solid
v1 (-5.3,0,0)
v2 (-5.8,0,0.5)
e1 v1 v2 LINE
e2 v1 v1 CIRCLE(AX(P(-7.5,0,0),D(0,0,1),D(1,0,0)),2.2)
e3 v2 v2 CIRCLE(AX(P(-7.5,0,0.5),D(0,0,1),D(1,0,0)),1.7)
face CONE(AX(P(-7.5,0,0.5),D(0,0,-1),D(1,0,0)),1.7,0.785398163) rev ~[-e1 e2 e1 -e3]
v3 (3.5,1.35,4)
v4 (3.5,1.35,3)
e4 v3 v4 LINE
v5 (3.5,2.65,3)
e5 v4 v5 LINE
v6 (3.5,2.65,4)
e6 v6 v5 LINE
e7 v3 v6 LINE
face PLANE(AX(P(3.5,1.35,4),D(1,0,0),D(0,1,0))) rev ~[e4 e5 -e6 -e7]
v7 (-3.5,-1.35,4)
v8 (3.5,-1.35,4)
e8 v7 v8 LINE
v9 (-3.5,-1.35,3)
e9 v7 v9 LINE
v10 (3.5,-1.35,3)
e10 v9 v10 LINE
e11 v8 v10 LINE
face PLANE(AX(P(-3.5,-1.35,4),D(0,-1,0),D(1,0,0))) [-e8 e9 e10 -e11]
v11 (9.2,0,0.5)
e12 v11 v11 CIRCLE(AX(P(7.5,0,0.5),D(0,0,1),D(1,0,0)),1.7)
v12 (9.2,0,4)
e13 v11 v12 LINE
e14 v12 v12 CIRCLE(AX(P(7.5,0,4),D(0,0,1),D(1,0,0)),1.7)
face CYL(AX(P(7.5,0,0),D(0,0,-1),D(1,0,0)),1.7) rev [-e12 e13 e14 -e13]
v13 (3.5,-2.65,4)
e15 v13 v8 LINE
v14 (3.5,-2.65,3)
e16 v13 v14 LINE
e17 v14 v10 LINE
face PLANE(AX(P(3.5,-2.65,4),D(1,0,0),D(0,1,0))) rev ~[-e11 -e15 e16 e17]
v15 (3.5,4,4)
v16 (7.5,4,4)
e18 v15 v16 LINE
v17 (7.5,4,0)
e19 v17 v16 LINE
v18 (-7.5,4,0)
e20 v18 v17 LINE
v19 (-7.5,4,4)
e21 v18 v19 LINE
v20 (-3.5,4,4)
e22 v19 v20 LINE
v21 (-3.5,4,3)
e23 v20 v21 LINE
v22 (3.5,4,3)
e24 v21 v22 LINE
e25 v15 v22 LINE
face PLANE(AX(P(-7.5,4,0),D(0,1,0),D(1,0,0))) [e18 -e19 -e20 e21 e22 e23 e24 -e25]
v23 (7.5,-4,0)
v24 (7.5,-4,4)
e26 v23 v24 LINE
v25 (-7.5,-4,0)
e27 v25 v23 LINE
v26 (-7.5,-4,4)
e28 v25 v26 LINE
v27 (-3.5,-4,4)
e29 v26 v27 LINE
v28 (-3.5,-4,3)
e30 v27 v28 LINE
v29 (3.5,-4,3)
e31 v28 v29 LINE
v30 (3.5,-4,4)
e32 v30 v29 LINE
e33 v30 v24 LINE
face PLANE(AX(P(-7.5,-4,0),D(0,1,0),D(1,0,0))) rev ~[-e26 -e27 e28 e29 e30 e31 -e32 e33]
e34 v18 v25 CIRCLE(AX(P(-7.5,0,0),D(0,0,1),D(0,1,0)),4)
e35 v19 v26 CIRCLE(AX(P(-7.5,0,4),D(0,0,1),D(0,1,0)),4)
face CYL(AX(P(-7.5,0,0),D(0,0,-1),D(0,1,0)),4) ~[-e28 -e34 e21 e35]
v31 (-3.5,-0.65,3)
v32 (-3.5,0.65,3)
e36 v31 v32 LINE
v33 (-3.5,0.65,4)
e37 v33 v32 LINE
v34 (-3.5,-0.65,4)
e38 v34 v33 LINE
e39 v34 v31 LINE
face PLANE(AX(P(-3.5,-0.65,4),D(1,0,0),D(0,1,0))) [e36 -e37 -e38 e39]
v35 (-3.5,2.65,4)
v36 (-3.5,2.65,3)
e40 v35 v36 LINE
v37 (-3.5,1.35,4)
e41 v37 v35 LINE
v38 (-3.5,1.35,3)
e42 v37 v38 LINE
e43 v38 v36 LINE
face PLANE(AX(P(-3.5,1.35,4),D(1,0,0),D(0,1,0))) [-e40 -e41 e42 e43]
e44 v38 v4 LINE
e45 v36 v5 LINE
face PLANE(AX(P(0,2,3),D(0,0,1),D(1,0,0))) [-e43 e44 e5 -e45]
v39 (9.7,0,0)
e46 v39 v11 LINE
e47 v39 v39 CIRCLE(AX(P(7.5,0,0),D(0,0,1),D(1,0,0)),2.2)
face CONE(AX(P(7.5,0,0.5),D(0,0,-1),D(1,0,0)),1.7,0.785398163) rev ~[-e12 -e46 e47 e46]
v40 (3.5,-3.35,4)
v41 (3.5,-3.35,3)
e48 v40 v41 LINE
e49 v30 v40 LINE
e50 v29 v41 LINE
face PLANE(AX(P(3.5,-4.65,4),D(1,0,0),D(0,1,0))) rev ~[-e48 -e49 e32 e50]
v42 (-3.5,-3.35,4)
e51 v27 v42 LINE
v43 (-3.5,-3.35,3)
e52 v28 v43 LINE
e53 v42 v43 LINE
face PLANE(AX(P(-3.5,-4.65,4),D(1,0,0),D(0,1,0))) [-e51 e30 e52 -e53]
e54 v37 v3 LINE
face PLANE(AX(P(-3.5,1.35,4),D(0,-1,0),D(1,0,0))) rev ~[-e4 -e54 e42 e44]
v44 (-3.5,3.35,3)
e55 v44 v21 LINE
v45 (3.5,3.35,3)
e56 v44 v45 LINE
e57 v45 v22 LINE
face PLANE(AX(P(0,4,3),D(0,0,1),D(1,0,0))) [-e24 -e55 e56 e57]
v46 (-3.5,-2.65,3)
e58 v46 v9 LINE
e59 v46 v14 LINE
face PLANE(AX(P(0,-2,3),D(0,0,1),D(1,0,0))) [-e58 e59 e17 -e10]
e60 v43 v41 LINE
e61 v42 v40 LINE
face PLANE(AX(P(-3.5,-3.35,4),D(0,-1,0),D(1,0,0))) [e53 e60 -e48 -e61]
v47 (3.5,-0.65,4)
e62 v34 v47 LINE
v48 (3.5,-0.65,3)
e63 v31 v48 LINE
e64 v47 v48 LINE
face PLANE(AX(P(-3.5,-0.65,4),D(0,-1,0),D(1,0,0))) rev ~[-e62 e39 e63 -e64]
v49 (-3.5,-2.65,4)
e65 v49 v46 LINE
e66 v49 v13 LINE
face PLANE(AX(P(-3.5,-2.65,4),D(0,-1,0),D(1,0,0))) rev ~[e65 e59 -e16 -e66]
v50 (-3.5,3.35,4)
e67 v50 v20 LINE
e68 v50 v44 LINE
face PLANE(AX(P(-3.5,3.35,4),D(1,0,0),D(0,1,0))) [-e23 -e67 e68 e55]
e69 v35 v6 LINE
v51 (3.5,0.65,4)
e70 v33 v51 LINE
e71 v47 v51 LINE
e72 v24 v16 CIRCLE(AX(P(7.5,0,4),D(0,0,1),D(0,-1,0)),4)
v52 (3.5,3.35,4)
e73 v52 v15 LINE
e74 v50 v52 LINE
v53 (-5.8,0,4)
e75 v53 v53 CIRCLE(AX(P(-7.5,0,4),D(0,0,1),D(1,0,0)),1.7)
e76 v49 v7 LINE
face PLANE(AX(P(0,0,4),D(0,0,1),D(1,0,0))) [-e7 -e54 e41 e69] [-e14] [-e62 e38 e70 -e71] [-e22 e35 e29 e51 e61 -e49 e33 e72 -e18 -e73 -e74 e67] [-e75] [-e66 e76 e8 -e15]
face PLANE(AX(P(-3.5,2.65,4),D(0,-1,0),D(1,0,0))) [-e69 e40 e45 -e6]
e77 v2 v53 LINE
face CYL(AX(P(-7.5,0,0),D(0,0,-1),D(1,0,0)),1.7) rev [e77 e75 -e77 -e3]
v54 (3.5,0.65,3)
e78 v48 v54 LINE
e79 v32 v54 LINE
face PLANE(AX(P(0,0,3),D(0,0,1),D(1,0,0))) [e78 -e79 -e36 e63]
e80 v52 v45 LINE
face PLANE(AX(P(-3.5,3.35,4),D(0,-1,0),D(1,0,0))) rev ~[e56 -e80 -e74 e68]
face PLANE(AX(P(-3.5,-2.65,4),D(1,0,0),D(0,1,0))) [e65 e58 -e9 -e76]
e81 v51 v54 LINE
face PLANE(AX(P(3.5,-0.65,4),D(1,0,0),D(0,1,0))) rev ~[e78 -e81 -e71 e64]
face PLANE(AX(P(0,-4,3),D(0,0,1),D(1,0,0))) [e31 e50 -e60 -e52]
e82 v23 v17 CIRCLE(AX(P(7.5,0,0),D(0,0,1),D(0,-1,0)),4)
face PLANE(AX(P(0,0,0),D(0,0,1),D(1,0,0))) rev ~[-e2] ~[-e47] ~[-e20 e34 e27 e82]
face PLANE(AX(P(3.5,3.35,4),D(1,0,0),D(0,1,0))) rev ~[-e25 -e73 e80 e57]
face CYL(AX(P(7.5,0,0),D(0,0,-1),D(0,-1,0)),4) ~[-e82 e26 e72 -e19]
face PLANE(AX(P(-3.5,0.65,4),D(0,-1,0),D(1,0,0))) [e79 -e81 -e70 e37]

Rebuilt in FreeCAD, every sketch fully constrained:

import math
import FreeCAD as App
import Part
import Sketcher


def edges_at(feature, points):
    """Names of the edges that pass closest to the given points."""
    edges = feature.Shape.Edges
    near = lambda p: min(range(len(edges)), key=lambda i: edges[i].distToShape(Part.Vertex(*p))[0])
    return sorted({f"Edge{near(p) + 1}" for p in points})


def add_polygon(sketch, points):
    """Adds a closed chain of lines whose ends are joined by coincident constraints."""
    first, n = sketch.GeometryCount, len(points)
    for a, b in zip(points, points[1:] + points[:1]):
        sketch.addGeometry(Part.LineSegment(App.Vector(*a, 0), App.Vector(*b, 0)), False)
    for i in range(n):
        sketch.addConstraint(Sketcher.Constraint("Coincident", first + i, 2, first + (i + 1) % n, 1))

doc = App.newDocument("Part")
body = doc.addObject("PartDesign::Body", "Body")

sketch1 = body.newObject("Sketcher::SketchObject", "Sketch")
sketch1.AttachmentSupport = (doc.getObject("XY_Plane"), [""])
sketch1.MapMode = "FlatFace"
sketch1.addGeometry([
    Part.ArcOfCircle(Part.Circle(App.Vector(-7.5, 0, 0), App.Vector(0, 0, 1), 4), math.radians(90), math.radians(270)),
    Part.LineSegment(App.Vector(-7.5, -4, 0), App.Vector(7.5, -4, 0)),
    Part.ArcOfCircle(Part.Circle(App.Vector(7.5, 0, 0), App.Vector(0, 0, 1), 4), math.radians(-90), math.radians(90)),
    Part.LineSegment(App.Vector(7.5, 4, 0), App.Vector(-7.5, 4, 0)),
    Part.Circle(App.Vector(-7.5, 0, 0), App.Vector(0, 0, 1), 1.7),
    Part.Circle(App.Vector(7.5, 0, 0), App.Vector(0, 0, 1), 1.7),
], False)
sketch1.addConstraint([
    Sketcher.Constraint("Tangent", 0, 2, 1, 1),
    Sketcher.Constraint("Tangent", 1, 2, 2, 1),
    Sketcher.Constraint("Tangent", 2, 2, 3, 1),
    Sketcher.Constraint("Tangent", 3, 2, 0, 1),
    Sketcher.Constraint("Horizontal", 1),
    Sketcher.Constraint("Horizontal", 3),
    Sketcher.Constraint("Coincident", 4, 3, 0, 3),
    Sketcher.Constraint("Coincident", 5, 3, 2, 3),
    Sketcher.Constraint("Equal", 4, 5),
    Sketcher.Constraint("Symmetric", 0, 3, 2, 3, -1, 1),
    Sketcher.Constraint("Radius", 0, 4.0),
    Sketcher.Constraint("Diameter", 4, 3.4),
    Sketcher.Constraint("DistanceX", 1, 1, 1, 2, 15.0),
])
pad1 = body.newObject("PartDesign::Pad", "Pad")
pad1.Profile = sketch1
pad1.Length = 4

sketch2 = body.newObject("Sketcher::SketchObject", "Sketch001")
sketch2.AttachmentSupport = (doc.getObject("XY_Plane"), [""])
sketch2.MapMode = "FlatFace"
sketch2.AttachmentOffset = App.Placement(App.Vector(0, 0, 4), App.Rotation())
add_polygon(sketch2, [(-3.5, 2.6), (-3.5, 1.4), (3.5, 1.4), (3.5, 2.6)])
add_polygon(sketch2, [(-3.5, 0.7), (-3.5, -0.7), (3.5, -0.7), (3.5, 0.7)])
add_polygon(sketch2, [(-3.5, -1.4), (-3.5, -2.6), (3.5, -2.6), (3.5, -1.4)])
add_polygon(sketch2, [(-3.5, 4.7), (-3.5, 3.4), (3.5, 3.4), (3.5, 4.7)])
add_polygon(sketch2, [(-3.5, -3.4), (-3.5, -4.7), (3.5, -4.7), (3.5, -3.4)])
sketch2.addConstraint([
    Sketcher.Constraint("Vertical", 0),
    Sketcher.Constraint("Horizontal", 1),
    Sketcher.Constraint("Vertical", 2),
    Sketcher.Constraint("Horizontal", 3),
    Sketcher.Constraint("Vertical", 4),
    Sketcher.Constraint("Horizontal", 5),
    Sketcher.Constraint("Vertical", 6),
    Sketcher.Constraint("Horizontal", 7),
    Sketcher.Constraint("Vertical", 8),
    Sketcher.Constraint("Horizontal", 9),
    Sketcher.Constraint("Vertical", 10),
    Sketcher.Constraint("Horizontal", 11),
    Sketcher.Constraint("Vertical", 12),
    Sketcher.Constraint("Horizontal", 13),
    Sketcher.Constraint("Vertical", 14),
    Sketcher.Constraint("Horizontal", 15),
    Sketcher.Constraint("Vertical", 16),
    Sketcher.Constraint("Horizontal", 17),
    Sketcher.Constraint("Vertical", 18),
    Sketcher.Constraint("Horizontal", 19),
    Sketcher.Constraint("Symmetric", 4, 2, 6, 2, -1, 1),
    Sketcher.Constraint("Symmetric", 2, 2, 8, 2, -1, 1),
    Sketcher.Constraint("Symmetric", 0, 2, 10, 2, -1, 1),
    Sketcher.Constraint("Symmetric", 14, 2, 16, 2, -1, 1),
    Sketcher.Constraint("Symmetric", 12, 2, 18, 2, -1, 1),
    Sketcher.Constraint("Vertical", 3, 2, 4, 2),
    Sketcher.Constraint("Vertical", 2, 2, 5, 2),
    Sketcher.Constraint("Vertical", 11, 2, 12, 2),
    Sketcher.Constraint("Vertical", 10, 2, 13, 2),
    Sketcher.Constraint("Equal", 2, 4),
    Sketcher.Constraint("Equal", 10, 12),
    Sketcher.Constraint("DistanceX", 1, 1, 1, 2, 7.0),
    Sketcher.Constraint("DistanceY", 0, 2, 0, 1, 1.3),
    Sketcher.Constraint("DistanceY", 4, 2, 0, 2, 2.0),
    Sketcher.Constraint("DistanceY", 0, 2, 12, 2, 2.0),
])
pocket1 = body.newObject("PartDesign::Pocket", "Pocket")
pocket1.Profile = sketch2
pocket1.Length = 1
doc.recompute()

chamfer = body.newObject("PartDesign::Chamfer", "Chamfer")
chamfer.Base = (pocket1, edges_at(pocket1, [(-9.2, 0, 0), (5.8, 0, 0)]))
chamfer.Size = 0.5

doc.recompute()
